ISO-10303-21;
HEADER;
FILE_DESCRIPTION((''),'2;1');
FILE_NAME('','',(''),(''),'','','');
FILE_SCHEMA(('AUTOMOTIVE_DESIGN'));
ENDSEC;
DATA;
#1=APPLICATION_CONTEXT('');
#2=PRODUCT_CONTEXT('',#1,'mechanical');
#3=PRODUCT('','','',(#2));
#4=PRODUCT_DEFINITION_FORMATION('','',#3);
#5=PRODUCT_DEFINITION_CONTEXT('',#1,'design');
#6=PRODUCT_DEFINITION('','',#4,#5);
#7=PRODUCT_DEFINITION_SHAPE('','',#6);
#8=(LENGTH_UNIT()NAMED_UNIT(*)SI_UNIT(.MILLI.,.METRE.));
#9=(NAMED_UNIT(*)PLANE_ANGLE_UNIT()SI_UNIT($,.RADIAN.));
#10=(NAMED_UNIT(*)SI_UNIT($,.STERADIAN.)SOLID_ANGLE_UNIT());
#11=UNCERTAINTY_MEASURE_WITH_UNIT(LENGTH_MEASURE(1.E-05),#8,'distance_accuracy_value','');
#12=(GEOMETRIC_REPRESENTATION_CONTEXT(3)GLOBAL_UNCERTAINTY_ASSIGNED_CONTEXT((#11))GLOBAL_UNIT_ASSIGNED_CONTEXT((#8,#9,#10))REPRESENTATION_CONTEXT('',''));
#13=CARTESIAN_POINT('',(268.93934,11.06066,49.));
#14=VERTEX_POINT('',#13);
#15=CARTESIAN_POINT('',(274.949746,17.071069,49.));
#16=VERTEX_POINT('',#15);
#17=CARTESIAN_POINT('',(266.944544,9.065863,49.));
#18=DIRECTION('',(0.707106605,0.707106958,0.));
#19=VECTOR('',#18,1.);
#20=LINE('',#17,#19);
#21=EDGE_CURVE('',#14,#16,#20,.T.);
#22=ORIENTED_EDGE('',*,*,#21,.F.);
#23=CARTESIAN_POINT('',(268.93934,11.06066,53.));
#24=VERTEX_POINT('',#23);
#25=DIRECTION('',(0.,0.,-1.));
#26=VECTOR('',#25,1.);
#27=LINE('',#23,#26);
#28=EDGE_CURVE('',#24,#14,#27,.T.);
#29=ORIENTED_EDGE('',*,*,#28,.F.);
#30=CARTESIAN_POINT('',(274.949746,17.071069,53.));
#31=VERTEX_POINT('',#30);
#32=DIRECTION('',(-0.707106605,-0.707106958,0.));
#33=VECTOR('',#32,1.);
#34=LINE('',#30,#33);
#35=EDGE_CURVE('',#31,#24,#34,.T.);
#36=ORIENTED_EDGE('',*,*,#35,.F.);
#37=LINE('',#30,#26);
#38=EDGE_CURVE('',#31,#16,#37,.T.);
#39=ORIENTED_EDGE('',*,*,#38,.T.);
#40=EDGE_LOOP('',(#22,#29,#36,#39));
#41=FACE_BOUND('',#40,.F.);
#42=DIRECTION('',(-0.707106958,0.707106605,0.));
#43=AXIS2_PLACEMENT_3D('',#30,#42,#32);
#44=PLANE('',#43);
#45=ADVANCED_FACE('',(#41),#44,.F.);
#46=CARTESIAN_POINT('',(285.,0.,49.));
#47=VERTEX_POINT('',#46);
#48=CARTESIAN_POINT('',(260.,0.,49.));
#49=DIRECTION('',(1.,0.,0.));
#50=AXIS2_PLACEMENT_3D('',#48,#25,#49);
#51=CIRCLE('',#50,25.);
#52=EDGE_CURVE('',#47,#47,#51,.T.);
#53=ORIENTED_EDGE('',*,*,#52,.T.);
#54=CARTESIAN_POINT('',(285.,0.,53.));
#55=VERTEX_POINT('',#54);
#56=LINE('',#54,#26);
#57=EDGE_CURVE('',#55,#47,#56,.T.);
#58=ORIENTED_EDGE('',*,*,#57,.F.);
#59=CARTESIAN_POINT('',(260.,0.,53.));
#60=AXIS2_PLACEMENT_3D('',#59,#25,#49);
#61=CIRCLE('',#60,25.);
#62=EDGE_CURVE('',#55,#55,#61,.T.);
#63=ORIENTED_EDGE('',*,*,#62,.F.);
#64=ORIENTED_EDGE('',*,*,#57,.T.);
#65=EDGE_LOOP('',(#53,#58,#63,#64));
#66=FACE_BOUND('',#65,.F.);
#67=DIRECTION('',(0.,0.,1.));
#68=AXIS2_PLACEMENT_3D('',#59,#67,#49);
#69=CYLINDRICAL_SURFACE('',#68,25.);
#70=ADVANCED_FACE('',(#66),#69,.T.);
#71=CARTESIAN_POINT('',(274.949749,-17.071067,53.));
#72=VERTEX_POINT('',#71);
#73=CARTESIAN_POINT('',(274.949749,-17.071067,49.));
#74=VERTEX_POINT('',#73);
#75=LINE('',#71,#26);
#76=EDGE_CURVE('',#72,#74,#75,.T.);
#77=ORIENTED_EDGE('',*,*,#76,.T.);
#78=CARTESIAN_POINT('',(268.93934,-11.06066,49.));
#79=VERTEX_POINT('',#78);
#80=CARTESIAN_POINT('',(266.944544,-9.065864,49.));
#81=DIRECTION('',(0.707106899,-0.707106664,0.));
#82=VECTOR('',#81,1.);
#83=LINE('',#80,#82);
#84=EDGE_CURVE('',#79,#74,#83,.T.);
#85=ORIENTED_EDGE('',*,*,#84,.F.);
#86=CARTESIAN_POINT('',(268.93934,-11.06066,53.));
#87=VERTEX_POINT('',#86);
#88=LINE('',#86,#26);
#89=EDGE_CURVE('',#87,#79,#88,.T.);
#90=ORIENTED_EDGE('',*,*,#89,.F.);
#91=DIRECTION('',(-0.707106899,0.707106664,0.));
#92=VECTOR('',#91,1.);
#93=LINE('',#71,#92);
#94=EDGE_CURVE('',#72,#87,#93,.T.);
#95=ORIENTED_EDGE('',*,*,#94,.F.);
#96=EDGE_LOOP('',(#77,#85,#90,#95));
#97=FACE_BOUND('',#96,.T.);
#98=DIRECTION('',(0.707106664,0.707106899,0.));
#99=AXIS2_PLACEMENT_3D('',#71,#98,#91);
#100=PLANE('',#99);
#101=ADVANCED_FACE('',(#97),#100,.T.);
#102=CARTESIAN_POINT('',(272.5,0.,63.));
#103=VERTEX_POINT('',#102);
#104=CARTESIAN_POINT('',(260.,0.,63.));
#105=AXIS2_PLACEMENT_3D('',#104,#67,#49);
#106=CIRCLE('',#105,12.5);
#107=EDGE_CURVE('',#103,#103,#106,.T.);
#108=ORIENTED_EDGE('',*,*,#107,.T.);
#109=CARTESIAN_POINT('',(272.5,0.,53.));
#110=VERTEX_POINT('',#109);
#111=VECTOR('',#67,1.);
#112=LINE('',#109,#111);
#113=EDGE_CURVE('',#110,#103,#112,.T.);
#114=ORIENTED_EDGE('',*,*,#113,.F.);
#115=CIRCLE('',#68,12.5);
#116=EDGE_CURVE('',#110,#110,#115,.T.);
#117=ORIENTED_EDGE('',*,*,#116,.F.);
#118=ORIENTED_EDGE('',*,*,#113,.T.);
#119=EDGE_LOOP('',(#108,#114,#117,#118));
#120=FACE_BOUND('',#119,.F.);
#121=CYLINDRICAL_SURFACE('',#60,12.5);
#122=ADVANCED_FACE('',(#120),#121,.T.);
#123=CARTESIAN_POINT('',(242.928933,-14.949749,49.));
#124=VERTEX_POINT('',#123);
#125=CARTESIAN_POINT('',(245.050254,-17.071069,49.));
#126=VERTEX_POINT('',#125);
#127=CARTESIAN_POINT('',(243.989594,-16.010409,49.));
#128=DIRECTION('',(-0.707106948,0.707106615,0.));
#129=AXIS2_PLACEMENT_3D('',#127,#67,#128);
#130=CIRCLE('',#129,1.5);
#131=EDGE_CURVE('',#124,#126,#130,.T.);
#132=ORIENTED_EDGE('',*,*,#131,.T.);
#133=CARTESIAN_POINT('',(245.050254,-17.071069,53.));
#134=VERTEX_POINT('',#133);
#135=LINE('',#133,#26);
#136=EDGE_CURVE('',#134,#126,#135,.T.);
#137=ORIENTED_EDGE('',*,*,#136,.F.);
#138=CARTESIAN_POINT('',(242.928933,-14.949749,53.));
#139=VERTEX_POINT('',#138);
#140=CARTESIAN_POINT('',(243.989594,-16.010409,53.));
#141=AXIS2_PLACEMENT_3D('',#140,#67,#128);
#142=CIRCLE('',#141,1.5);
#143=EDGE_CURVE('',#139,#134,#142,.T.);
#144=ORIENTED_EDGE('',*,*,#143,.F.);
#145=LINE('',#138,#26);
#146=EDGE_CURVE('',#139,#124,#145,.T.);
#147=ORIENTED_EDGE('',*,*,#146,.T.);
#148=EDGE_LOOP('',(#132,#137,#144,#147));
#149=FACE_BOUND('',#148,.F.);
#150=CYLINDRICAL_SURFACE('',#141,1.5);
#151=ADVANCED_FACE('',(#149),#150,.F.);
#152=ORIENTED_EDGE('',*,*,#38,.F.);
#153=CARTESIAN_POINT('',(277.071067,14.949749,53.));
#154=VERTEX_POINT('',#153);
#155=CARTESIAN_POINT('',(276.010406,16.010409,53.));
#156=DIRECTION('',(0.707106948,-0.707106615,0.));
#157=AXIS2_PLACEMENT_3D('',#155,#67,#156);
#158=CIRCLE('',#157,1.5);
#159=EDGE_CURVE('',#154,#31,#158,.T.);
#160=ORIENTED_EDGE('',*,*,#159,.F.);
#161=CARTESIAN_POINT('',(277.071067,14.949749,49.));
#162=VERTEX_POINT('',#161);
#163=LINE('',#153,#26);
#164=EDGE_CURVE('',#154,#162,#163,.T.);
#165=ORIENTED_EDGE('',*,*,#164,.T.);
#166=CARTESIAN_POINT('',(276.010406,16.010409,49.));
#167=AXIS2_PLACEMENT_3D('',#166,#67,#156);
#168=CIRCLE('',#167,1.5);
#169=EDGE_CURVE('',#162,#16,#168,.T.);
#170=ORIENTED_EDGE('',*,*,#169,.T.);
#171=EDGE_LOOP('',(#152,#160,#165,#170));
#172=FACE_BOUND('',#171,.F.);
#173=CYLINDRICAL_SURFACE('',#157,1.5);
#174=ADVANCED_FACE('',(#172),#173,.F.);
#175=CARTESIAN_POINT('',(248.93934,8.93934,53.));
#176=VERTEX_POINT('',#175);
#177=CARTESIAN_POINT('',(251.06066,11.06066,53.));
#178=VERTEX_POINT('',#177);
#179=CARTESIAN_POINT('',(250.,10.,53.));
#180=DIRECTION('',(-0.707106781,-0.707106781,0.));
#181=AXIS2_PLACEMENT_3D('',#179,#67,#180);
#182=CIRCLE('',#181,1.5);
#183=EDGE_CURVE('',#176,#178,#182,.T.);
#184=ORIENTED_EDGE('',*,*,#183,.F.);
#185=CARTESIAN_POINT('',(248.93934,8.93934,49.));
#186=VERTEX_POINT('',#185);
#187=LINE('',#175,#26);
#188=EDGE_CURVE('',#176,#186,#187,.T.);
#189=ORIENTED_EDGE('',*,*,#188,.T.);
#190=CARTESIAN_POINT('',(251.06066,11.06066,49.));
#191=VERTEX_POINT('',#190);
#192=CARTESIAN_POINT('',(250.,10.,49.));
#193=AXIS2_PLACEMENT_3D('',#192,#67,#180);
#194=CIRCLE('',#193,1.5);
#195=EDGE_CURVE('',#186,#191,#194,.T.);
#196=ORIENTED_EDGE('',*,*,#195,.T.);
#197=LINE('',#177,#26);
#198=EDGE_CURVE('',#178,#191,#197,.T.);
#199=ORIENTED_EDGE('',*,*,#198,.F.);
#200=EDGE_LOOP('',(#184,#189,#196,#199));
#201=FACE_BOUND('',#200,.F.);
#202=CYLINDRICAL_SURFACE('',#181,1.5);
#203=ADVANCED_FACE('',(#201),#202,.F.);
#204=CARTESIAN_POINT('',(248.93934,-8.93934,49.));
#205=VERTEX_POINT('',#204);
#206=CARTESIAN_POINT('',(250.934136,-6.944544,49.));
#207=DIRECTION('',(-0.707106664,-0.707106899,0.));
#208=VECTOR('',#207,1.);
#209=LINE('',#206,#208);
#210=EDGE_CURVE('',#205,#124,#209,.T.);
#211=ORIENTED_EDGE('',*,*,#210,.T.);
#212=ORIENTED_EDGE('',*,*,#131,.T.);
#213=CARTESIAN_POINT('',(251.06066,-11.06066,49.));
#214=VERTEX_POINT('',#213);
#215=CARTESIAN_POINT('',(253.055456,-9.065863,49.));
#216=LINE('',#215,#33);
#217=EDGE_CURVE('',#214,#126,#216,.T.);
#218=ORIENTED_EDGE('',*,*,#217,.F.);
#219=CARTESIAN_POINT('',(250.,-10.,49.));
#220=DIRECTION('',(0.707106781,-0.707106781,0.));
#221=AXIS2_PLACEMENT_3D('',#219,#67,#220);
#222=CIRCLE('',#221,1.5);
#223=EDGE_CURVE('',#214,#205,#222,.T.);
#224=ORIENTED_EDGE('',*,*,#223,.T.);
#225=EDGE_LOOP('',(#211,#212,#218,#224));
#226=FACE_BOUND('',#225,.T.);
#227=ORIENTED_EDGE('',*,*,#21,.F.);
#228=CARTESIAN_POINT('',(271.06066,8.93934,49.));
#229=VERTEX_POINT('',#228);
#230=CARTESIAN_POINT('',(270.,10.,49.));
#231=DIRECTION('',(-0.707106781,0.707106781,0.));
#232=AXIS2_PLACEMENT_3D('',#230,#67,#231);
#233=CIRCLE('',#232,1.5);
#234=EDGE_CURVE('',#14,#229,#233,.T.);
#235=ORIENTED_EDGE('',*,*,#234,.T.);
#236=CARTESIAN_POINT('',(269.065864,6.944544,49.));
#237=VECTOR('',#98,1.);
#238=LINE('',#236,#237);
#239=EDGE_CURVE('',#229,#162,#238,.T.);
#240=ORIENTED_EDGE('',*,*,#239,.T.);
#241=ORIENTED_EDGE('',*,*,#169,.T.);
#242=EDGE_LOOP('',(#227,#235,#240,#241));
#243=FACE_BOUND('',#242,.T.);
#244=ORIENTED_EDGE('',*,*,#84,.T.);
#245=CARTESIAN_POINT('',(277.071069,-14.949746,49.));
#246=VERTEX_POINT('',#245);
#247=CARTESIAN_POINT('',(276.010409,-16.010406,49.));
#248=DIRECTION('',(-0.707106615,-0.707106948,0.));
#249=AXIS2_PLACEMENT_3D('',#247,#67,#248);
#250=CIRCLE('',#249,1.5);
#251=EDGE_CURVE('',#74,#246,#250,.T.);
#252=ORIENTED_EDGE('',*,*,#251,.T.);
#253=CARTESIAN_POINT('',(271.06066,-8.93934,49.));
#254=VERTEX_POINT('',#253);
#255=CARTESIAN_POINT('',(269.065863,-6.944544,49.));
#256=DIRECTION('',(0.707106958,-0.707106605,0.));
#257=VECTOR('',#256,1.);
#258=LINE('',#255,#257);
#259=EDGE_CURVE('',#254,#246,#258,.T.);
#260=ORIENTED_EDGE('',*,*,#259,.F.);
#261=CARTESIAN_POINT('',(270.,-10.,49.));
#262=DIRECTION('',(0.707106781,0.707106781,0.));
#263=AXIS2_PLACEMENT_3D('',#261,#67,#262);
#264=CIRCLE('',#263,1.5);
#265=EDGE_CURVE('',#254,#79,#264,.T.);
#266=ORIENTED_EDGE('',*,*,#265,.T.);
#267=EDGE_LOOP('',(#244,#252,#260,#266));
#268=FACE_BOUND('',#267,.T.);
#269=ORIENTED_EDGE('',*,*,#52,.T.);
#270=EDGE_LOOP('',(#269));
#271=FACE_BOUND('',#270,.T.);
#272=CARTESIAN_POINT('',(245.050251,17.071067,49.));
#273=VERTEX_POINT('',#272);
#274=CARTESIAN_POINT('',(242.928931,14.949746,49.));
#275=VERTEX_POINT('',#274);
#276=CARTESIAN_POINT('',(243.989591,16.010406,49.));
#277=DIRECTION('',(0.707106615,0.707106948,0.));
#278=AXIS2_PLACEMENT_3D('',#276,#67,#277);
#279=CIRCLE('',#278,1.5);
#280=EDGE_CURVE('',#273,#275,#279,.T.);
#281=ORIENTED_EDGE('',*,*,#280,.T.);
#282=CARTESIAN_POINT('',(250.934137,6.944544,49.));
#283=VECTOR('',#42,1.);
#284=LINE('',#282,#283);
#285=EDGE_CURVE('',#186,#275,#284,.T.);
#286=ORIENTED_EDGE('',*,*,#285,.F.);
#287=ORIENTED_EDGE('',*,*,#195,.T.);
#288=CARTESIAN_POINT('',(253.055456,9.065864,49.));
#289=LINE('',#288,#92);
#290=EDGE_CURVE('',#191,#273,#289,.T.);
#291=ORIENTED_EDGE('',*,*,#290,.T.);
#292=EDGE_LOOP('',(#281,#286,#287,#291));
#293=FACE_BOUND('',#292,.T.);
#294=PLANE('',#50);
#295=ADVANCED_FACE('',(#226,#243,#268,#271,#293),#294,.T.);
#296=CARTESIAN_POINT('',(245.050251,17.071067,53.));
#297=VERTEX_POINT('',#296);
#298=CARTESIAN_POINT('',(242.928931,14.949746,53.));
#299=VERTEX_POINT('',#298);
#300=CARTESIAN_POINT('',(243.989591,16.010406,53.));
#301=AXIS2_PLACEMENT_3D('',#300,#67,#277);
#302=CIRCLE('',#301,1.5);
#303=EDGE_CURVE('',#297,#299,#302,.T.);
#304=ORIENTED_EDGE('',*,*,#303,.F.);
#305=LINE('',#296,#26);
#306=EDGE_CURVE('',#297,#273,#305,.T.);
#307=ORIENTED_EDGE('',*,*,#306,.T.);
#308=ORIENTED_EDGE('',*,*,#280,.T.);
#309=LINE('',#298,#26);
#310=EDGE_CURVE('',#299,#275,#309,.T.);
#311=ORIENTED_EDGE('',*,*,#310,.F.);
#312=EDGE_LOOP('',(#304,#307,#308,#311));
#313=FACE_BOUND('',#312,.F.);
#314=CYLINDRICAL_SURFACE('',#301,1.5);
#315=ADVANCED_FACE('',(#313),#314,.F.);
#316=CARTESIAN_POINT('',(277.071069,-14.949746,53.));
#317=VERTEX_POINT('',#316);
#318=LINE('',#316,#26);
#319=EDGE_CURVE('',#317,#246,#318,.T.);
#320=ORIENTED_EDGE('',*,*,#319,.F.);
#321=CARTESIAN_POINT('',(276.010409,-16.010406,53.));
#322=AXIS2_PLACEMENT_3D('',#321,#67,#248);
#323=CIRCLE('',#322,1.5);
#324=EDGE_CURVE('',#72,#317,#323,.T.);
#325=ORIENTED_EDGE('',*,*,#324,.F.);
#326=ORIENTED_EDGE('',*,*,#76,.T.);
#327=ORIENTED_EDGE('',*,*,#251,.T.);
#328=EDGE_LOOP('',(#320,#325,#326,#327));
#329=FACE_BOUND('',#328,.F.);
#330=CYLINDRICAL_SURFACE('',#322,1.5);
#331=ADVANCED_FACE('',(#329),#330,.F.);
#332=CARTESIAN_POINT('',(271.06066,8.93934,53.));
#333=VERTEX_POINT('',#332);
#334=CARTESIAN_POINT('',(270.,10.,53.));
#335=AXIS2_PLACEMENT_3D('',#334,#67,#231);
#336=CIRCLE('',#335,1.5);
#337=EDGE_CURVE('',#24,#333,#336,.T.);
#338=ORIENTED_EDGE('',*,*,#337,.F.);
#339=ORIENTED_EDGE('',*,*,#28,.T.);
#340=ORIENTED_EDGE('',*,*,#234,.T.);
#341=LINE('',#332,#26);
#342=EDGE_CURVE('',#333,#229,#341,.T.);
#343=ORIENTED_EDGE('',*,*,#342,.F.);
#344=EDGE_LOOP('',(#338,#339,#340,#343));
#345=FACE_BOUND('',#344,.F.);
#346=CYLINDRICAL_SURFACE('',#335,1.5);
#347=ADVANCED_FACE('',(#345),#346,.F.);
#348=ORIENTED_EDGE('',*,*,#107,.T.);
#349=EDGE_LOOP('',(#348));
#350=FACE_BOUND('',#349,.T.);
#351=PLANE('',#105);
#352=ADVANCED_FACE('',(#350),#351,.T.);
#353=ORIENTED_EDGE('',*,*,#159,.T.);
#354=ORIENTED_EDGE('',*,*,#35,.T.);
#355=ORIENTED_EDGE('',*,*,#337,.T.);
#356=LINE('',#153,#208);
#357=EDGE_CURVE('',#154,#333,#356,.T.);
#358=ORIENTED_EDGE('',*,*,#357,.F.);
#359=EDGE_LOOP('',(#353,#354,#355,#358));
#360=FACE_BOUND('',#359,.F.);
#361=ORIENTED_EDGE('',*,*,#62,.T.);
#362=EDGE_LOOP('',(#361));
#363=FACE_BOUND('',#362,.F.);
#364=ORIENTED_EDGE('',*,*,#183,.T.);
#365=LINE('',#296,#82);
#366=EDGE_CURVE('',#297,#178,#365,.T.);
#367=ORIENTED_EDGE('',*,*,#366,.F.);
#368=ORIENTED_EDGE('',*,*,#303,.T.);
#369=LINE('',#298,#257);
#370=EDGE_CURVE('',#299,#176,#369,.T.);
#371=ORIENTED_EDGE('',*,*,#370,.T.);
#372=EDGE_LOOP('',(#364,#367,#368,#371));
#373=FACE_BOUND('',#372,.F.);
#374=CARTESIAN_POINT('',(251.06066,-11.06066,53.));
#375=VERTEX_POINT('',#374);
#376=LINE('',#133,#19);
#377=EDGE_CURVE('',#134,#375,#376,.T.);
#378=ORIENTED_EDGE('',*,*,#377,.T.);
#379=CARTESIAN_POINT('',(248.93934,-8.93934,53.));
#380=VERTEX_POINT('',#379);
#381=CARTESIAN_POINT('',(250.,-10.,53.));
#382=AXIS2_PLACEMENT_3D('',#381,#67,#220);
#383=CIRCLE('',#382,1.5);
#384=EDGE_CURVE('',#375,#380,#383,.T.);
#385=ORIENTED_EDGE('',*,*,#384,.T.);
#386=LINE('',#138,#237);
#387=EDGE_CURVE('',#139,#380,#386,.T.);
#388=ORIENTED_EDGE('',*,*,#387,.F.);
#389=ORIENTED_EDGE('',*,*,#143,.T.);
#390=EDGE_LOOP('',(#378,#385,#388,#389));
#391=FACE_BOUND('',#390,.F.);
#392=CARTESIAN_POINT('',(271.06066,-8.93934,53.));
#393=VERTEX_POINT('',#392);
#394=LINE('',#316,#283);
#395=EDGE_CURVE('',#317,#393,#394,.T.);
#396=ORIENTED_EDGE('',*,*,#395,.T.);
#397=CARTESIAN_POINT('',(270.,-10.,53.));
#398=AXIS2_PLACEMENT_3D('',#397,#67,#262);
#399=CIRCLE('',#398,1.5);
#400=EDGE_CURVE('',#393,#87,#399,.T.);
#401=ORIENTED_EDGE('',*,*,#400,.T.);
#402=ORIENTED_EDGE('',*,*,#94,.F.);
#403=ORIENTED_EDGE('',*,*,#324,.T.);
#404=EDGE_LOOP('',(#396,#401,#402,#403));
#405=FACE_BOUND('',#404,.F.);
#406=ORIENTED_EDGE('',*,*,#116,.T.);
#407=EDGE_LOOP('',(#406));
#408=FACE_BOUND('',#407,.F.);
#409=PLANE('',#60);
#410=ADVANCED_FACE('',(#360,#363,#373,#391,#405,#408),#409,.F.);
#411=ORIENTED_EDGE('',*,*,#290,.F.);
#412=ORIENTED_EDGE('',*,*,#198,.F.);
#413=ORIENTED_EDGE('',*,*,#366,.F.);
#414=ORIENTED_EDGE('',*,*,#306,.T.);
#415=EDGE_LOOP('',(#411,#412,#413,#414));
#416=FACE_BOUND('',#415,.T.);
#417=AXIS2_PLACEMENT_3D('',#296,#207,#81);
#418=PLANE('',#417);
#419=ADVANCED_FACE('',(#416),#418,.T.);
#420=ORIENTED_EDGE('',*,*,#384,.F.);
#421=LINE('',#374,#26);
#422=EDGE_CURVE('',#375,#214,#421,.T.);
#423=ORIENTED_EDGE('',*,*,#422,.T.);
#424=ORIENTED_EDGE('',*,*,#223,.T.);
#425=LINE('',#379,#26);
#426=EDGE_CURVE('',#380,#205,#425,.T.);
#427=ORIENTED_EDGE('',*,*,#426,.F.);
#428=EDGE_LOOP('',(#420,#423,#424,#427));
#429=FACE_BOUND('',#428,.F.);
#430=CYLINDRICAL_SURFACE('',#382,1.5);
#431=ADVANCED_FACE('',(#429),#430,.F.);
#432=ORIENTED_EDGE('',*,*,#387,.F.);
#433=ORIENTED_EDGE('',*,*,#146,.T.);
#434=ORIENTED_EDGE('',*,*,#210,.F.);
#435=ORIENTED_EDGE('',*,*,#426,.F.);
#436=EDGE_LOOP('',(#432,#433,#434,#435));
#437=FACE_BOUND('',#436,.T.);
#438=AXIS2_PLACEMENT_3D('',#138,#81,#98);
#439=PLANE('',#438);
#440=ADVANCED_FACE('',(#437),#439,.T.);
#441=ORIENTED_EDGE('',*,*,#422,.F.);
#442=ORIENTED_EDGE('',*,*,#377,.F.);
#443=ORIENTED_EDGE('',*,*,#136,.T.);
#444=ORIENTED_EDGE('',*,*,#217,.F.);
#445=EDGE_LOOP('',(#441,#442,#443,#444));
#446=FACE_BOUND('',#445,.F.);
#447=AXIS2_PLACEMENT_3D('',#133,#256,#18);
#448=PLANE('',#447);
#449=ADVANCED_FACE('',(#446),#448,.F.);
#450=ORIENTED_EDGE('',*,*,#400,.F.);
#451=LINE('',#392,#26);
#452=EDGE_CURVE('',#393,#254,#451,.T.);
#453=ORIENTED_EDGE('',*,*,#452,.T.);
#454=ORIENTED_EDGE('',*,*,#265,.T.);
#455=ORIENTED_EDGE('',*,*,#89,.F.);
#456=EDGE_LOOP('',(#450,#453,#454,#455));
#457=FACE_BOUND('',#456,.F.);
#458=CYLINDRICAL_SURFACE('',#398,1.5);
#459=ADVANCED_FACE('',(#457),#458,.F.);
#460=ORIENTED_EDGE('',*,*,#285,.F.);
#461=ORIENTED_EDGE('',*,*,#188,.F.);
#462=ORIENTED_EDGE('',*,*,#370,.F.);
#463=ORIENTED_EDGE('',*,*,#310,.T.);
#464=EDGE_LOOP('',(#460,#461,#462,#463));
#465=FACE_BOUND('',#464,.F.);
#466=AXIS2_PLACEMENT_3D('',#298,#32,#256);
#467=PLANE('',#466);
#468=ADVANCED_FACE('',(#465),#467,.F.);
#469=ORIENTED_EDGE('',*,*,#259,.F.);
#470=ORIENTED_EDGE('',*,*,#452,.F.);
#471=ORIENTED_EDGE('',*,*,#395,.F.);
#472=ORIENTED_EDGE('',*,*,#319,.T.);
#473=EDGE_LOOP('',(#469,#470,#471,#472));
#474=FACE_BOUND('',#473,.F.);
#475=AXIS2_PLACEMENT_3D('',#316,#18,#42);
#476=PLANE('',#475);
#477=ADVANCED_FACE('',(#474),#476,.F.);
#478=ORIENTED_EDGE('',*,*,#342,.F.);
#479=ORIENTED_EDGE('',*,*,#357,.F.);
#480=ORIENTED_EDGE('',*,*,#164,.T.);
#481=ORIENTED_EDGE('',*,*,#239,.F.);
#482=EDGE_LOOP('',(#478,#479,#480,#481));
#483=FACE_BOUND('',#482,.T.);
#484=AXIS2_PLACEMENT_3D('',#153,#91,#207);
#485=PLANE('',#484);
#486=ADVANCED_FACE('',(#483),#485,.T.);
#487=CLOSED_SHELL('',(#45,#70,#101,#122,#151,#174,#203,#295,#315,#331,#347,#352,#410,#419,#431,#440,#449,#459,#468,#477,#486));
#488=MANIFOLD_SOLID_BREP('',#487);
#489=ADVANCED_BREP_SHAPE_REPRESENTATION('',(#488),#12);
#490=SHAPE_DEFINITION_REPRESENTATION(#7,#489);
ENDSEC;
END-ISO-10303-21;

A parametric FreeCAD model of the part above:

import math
import FreeCAD as App
import Part
import Sketcher

V = App.Vector
Q = App.Units.Quantity

doc = App.newDocument("Part")
body = doc.addObject("PartDesign::Body", "Body")

sketch1 = doc.addObject("Sketcher::SketchObject", "Sketch")
body.addObject(sketch1)
sketch1.AttachmentSupport = (doc.XY_Plane, [""])
sketch1.MapMode = "FlatFace"
sketch1.addGeometry(Part.Circle(V(0, 0, 0), V(0, 0, 1), 12.5), False)
sketch1.addConstraint([
    Sketcher.Constraint("Coincident", 0, 3, -1, 1),
    Sketcher.Constraint("Diameter", 0, Q("25 mm")),
])
pad1 = doc.addObject("PartDesign::Pad", "Pad")
body.addObject(pad1)
pad1.Profile = sketch1
pad1.Length = 10

sketch2 = doc.addObject("Sketcher::SketchObject", "Sketch001")
body.addObject(sketch2)
sketch2.AttachmentSupport = (doc.XY_Plane, [""])
sketch2.MapMode = "FlatFace"
sketch2.addGeometry(Part.Circle(V(0, 0, 0), V(0, 0, 1), 25), False)
sketch2.addConstraint([
    Sketcher.Constraint("Coincident", 0, 3, -1, 1),
    Sketcher.Constraint("Diameter", 0, Q("50 mm")),
])
pad2 = doc.addObject("PartDesign::Pad", "Pad001")
body.addObject(pad2)
pad2.Profile = sketch2
pad2.Length = 4
pad2.Reversed = True

sketch3 = doc.addObject("Sketcher::SketchObject", "Sketch002")
body.addObject(sketch3)
sketch3.AttachmentSupport = (doc.XY_Plane, [""])
sketch3.MapMode = "FlatFace"
sketch3.addGeometry([
    Part.ArcOfCircle(Part.Circle(V(-16.010409, 16.010406, 0), V(0, 0, 1), 1.5), math.radians(45.000014), math.radians(225.000014)),
    Part.LineSegment(V(-17.071069, 14.949746, 0), V(-11.06066, 8.93934, 0)),
    Part.ArcOfCircle(Part.Circle(V(-10, 10, 0), V(0, 0, 1), 1.5), math.radians(-135), math.radians(45)),
    Part.LineSegment(V(-8.93934, 11.06066, 0), V(-14.949749, 17.071067, 0)),
], False)
sketch3.addConstraint([
    Sketcher.Constraint("Tangent", 0, 2, 1, 1),
    Sketcher.Constraint("Tangent", 1, 2, 2, 1),
    Sketcher.Constraint("Tangent", 2, 2, 3, 1),
    Sketcher.Constraint("Tangent", 3, 2, 0, 1),
    Sketcher.Constraint("Equal", 0, 2),
    Sketcher.Constraint("Radius", 0, Q("1.5 mm")),
    Sketcher.Constraint("Angle", 1, Q("-44.999986 deg")),
    Sketcher.Constraint("DistanceX", 2, 3, -1, 1, Q("10 mm")),
    Sketcher.Constraint("DistanceY", -1, 1, 2, 3, Q("10 mm")),
    Sketcher.Constraint("Distance", 1, Q("8.5 mm")),
])
pocket1 = doc.addObject("PartDesign::Pocket", "Pocket")
body.addObject(pocket1)
pocket1.Profile = sketch3
pocket1.Length = 5
doc.recompute()

polarpattern = doc.addObject("PartDesign::PolarPattern", "PolarPattern")
body.addObject(polarpattern)
polarpattern.Originals = [pocket1]
polarpattern.Axis = (doc.Z_Axis, [""])
polarpattern.Angle = 360
polarpattern.Occurrences = 4
body.Tip = polarpattern
body2 = doc.addObject("PartDesign::Body", "Body001")
doc.recompute()

body.Placement = App.Placement(V(260, 0, 53), App.Rotation(V(0, 0, 1), 0))
boolean = doc.addObject("PartDesign::Boolean", "Boolean")
body2.addObject(boolean)
boolean.Type = "Fuse"
boolean.addObjects([body])

doc.recompute()
